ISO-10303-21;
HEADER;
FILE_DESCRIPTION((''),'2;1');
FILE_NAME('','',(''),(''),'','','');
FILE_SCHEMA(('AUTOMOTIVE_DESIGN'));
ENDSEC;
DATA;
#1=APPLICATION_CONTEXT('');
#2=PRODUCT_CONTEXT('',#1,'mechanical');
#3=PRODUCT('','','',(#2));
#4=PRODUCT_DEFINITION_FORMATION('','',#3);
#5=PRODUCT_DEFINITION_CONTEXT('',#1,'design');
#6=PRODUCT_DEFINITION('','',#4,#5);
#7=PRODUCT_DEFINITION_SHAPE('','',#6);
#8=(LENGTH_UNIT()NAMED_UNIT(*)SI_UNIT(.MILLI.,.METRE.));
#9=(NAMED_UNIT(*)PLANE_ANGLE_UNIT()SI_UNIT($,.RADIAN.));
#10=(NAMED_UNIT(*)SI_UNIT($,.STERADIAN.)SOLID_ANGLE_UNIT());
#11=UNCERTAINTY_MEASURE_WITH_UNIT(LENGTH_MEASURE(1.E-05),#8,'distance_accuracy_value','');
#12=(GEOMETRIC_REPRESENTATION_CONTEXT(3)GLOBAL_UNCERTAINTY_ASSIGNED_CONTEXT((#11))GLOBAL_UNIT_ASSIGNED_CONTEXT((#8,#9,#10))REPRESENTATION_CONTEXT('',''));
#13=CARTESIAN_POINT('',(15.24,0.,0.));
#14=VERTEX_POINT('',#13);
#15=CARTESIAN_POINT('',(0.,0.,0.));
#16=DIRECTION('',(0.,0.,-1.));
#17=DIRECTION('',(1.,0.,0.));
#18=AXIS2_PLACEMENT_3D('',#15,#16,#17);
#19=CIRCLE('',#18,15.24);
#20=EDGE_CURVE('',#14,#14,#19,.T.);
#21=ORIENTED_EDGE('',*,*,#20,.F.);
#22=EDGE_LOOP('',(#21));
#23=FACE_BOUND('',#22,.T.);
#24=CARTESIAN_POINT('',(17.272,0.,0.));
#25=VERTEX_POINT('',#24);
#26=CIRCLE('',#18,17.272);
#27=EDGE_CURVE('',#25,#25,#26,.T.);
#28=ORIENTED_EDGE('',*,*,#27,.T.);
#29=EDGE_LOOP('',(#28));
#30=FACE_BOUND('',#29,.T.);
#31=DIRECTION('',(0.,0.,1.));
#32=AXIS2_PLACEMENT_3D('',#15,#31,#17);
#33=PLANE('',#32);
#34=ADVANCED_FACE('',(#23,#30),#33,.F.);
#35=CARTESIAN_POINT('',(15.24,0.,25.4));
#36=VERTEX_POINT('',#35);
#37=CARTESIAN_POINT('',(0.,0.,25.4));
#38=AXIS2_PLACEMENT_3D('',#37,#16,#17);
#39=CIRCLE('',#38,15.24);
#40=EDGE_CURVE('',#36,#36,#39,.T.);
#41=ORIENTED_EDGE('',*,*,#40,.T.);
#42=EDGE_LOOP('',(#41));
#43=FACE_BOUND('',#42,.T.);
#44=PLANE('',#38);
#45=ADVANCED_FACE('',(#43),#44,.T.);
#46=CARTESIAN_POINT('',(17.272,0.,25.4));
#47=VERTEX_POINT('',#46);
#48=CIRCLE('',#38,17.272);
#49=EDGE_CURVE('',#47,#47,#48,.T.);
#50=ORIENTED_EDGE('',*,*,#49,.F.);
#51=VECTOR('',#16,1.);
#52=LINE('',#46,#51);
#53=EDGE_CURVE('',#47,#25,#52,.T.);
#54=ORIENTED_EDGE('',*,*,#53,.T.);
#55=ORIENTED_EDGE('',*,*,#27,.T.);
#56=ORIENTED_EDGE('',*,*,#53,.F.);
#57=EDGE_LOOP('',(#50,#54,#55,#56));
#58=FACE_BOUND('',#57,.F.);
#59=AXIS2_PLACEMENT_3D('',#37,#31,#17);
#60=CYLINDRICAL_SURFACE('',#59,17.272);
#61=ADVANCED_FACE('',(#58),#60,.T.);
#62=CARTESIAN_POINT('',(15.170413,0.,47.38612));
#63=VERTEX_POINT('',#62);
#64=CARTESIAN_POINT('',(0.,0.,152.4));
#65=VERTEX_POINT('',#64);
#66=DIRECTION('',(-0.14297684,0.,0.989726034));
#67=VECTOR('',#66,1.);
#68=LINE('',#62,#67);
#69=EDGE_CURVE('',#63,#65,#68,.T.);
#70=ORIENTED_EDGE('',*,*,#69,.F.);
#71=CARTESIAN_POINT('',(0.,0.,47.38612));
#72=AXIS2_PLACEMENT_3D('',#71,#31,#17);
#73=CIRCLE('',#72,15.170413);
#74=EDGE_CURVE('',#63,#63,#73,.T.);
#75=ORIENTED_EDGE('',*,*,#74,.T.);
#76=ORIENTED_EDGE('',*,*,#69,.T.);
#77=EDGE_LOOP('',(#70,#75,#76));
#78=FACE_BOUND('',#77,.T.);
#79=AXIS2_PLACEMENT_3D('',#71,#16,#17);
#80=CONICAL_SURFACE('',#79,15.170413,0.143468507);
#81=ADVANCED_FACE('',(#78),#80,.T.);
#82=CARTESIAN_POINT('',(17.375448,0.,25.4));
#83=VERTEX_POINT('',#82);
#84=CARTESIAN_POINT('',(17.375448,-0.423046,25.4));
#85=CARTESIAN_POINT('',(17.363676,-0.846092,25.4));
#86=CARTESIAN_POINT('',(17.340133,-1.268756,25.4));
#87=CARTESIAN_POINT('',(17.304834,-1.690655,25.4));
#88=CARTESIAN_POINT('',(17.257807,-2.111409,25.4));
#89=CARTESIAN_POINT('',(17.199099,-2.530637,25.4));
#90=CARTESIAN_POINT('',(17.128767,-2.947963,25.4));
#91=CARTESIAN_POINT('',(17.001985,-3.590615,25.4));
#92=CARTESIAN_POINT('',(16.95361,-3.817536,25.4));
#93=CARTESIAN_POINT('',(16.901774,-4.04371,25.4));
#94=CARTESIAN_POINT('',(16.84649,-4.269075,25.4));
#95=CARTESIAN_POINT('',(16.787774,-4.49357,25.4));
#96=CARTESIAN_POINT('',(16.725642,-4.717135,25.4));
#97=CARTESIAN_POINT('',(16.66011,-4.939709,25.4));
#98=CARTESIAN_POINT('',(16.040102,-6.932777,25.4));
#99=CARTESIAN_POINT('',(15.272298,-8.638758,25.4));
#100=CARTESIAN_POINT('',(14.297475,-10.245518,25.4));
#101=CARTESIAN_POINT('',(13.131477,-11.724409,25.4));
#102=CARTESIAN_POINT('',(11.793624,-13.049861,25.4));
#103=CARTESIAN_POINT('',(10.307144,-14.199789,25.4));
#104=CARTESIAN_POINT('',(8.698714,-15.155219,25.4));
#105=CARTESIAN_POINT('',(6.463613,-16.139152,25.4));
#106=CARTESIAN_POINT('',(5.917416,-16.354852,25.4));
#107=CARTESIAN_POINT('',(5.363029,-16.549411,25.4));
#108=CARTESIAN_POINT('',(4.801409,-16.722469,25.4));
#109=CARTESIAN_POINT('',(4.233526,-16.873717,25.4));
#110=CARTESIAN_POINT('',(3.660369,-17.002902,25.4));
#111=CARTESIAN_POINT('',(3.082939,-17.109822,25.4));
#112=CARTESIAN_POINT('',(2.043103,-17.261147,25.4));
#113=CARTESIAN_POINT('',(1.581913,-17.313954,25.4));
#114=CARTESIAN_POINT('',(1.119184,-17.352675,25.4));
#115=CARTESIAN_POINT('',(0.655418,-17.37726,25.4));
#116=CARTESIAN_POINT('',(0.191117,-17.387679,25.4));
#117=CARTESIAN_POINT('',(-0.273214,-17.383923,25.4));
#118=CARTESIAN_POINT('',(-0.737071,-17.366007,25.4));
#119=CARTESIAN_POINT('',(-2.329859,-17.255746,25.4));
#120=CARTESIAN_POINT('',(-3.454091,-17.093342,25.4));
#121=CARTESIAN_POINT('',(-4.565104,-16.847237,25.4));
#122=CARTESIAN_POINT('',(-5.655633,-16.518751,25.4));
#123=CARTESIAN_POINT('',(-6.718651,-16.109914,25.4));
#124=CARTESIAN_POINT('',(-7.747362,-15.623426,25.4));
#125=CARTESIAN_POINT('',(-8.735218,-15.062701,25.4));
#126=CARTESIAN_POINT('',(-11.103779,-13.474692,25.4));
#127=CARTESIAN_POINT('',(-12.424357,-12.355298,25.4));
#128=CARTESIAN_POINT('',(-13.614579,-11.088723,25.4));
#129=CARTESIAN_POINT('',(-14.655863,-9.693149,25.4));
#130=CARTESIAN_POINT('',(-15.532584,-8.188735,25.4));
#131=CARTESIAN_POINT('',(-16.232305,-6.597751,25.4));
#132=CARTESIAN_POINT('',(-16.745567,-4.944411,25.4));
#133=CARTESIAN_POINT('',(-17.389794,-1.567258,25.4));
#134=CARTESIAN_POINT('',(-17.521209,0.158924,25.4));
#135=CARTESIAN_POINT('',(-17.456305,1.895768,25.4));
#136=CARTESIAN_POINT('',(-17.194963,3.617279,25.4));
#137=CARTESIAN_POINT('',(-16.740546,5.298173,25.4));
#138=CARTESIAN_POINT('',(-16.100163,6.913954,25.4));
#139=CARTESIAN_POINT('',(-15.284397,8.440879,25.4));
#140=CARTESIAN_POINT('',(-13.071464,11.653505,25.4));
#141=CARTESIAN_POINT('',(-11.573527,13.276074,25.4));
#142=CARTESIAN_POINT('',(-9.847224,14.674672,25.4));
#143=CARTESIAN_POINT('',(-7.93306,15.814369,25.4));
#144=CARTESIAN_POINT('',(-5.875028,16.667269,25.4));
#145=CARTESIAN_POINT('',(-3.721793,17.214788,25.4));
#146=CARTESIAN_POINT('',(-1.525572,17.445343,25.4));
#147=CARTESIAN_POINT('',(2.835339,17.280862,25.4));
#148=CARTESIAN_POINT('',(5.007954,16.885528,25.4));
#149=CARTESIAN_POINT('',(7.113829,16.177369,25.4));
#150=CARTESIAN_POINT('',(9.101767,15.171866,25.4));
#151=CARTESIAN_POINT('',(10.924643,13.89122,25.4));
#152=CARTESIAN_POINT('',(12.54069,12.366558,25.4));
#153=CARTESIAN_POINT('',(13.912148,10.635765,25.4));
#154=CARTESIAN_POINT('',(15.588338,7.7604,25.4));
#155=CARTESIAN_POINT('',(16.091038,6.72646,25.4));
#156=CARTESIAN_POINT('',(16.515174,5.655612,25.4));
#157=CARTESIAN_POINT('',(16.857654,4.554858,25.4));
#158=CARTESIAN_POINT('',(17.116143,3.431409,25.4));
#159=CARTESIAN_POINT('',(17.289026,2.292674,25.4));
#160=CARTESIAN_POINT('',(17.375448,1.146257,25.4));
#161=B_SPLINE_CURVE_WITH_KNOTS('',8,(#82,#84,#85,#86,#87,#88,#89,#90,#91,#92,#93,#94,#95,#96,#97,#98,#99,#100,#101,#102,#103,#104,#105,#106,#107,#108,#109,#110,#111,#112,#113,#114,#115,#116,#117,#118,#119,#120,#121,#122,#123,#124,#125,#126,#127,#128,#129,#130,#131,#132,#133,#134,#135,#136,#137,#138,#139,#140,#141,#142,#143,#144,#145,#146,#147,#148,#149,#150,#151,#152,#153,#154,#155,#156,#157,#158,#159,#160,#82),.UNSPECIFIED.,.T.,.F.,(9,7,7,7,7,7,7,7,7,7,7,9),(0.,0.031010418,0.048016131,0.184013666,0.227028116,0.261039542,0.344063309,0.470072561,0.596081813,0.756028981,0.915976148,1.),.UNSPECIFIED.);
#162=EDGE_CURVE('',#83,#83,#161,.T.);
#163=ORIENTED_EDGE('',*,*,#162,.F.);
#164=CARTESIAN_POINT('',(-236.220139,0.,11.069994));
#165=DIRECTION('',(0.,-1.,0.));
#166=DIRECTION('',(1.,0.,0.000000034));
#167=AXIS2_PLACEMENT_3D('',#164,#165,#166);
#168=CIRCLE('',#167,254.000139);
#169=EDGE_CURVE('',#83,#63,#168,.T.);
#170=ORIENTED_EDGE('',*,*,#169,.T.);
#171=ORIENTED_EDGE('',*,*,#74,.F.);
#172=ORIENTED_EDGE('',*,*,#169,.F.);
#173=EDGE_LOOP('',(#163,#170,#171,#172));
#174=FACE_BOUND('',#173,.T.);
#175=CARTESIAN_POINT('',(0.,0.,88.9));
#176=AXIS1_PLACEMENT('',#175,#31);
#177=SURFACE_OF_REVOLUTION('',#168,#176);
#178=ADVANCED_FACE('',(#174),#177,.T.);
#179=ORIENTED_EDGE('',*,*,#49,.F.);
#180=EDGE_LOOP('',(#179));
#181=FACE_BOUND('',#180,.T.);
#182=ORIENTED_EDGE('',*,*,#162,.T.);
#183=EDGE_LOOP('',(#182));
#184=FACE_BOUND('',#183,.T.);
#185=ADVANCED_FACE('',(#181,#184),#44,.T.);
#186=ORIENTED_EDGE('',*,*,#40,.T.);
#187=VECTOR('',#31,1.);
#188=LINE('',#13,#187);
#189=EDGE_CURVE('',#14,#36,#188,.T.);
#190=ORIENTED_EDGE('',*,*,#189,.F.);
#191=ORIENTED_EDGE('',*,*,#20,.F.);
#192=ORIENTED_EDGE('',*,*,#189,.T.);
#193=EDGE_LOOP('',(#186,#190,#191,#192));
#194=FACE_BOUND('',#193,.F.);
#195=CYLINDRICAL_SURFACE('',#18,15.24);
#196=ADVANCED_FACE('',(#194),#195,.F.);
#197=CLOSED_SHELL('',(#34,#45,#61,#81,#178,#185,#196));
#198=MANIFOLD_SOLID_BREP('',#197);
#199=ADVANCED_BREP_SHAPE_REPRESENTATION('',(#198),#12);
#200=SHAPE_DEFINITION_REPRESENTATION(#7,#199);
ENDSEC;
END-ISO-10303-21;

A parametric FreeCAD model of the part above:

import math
import FreeCAD as App
import Part
import Sketcher

V = App.Vector
Q = App.Units.Quantity

doc = App.newDocument("Part")
body = doc.addObject("PartDesign::Body", "Body")

sketch1 = doc.addObject("Sketcher::SketchObject", "Sketch")
body.addObject(sketch1)
sketch1.AttachmentSupport = (doc.XZ_Plane, [""])
sketch1.MapMode = "FlatFace"
sketch1.addGeometry([
    Part.LineSegment(V(0, 0, 0), V(18, 0, 0)),
    Part.LineSegment(V(18, 0, 0), V(18, 11, 0)),
    Part.ArcOfCircle(Part.Circle(V(-236, 11, 0), V(0, 0, 1), 254), math.radians(0), math.radians(8.22)),
    Part.LineSegment(V(15, 47, 0), V(0, 152, 0)),
    Part.LineSegment(V(0, 152, 0), V(0, 0, 0)),
], False)
sketch1.addConstraint([
    Sketcher.Constraint("Coincident", 0, 2, 1, 1),
    Sketcher.Constraint("Tangent", 1, 2, 2, 1),
    Sketcher.Constraint("Tangent", 2, 2, 3, 1),
    Sketcher.Constraint("Coincident", 3, 2, 4, 1),
    Sketcher.Constraint("Coincident", 4, 2, 0, 1),
    Sketcher.Constraint("Horizontal", 0),
    Sketcher.Constraint("Vertical", 1),
    Sketcher.Constraint("Vertical", 4),
    Sketcher.Constraint("Coincident", 4, 2, -1, 1),
    Sketcher.Constraint("DistanceY", 4, 2, 4, 1, Q("6 in")),
    Sketcher.Constraint("DistanceX", 0, 1, 0, 2, Q("0.7 in")),
    Sketcher.Constraint("Radius", 2, 254.000139),
    Sketcher.Constraint("Distance", 3, 106.103989),
])
revolution = doc.addObject("PartDesign::Revolution", "Revolution")
body.addObject(revolution)
revolution.Profile = sketch1
revolution.ReferenceAxis = (sketch1, ["V_Axis"])
revolution.Angle = 360

sketch2 = doc.addObject("Sketcher::SketchObject", "Sketch001")
body.addObject(sketch2)
sketch2.AttachmentSupport = (doc.XY_Plane, [""])
sketch2.MapMode = "FlatFace"
sketch2.addGeometry(Part.Circle(V(0, 0, 0), V(0, 0, 1), 15), False)
sketch2.addConstraint([
    Sketcher.Constraint("Coincident", 0, 3, -1, 1),
    Sketcher.Constraint("Diameter", 0, Q("1.2 in")),
])
pocket1 = doc.addObject("PartDesign::Pocket", "Pocket")
body.addObject(pocket1)
pocket1.Profile = sketch2
pocket1.Length = Q("1 in")
pocket1.Reversed = True

sketch3 = doc.addObject("Sketcher::SketchObject", "Sketch002")
body.addObject(sketch3)
sketch3.AttachmentSupport = (doc.XY_Plane, [""])
sketch3.MapMode = "FlatFace"
sketch3.AttachmentOffset = App.Placement(V(0, 0, 1 * 25.4), App.Rotation())
sketch3.addGeometry([
    Part.Circle(V(0, 0, 0), V(0, 0, 1), 18),
    Part.Circle(V(0, 0, 0), V(0, 0, 1), 17),
], False)
sketch3.addConstraint([
    Sketcher.Constraint("Coincident", 0, 3, -1, 1),
    Sketcher.Constraint("Coincident", 1, 3, -1, 1),
    Sketcher.Constraint("Diameter", 0, Q("1.4 in")),
    Sketcher.Constraint("Diameter", 1, Q("1.36 in")),
])
pocket2 = doc.addObject("PartDesign::Pocket", "Pocket001")
body.addObject(pocket2)
pocket2.Profile = sketch3
pocket2.Length = Q("1 in")

doc.recompute()
